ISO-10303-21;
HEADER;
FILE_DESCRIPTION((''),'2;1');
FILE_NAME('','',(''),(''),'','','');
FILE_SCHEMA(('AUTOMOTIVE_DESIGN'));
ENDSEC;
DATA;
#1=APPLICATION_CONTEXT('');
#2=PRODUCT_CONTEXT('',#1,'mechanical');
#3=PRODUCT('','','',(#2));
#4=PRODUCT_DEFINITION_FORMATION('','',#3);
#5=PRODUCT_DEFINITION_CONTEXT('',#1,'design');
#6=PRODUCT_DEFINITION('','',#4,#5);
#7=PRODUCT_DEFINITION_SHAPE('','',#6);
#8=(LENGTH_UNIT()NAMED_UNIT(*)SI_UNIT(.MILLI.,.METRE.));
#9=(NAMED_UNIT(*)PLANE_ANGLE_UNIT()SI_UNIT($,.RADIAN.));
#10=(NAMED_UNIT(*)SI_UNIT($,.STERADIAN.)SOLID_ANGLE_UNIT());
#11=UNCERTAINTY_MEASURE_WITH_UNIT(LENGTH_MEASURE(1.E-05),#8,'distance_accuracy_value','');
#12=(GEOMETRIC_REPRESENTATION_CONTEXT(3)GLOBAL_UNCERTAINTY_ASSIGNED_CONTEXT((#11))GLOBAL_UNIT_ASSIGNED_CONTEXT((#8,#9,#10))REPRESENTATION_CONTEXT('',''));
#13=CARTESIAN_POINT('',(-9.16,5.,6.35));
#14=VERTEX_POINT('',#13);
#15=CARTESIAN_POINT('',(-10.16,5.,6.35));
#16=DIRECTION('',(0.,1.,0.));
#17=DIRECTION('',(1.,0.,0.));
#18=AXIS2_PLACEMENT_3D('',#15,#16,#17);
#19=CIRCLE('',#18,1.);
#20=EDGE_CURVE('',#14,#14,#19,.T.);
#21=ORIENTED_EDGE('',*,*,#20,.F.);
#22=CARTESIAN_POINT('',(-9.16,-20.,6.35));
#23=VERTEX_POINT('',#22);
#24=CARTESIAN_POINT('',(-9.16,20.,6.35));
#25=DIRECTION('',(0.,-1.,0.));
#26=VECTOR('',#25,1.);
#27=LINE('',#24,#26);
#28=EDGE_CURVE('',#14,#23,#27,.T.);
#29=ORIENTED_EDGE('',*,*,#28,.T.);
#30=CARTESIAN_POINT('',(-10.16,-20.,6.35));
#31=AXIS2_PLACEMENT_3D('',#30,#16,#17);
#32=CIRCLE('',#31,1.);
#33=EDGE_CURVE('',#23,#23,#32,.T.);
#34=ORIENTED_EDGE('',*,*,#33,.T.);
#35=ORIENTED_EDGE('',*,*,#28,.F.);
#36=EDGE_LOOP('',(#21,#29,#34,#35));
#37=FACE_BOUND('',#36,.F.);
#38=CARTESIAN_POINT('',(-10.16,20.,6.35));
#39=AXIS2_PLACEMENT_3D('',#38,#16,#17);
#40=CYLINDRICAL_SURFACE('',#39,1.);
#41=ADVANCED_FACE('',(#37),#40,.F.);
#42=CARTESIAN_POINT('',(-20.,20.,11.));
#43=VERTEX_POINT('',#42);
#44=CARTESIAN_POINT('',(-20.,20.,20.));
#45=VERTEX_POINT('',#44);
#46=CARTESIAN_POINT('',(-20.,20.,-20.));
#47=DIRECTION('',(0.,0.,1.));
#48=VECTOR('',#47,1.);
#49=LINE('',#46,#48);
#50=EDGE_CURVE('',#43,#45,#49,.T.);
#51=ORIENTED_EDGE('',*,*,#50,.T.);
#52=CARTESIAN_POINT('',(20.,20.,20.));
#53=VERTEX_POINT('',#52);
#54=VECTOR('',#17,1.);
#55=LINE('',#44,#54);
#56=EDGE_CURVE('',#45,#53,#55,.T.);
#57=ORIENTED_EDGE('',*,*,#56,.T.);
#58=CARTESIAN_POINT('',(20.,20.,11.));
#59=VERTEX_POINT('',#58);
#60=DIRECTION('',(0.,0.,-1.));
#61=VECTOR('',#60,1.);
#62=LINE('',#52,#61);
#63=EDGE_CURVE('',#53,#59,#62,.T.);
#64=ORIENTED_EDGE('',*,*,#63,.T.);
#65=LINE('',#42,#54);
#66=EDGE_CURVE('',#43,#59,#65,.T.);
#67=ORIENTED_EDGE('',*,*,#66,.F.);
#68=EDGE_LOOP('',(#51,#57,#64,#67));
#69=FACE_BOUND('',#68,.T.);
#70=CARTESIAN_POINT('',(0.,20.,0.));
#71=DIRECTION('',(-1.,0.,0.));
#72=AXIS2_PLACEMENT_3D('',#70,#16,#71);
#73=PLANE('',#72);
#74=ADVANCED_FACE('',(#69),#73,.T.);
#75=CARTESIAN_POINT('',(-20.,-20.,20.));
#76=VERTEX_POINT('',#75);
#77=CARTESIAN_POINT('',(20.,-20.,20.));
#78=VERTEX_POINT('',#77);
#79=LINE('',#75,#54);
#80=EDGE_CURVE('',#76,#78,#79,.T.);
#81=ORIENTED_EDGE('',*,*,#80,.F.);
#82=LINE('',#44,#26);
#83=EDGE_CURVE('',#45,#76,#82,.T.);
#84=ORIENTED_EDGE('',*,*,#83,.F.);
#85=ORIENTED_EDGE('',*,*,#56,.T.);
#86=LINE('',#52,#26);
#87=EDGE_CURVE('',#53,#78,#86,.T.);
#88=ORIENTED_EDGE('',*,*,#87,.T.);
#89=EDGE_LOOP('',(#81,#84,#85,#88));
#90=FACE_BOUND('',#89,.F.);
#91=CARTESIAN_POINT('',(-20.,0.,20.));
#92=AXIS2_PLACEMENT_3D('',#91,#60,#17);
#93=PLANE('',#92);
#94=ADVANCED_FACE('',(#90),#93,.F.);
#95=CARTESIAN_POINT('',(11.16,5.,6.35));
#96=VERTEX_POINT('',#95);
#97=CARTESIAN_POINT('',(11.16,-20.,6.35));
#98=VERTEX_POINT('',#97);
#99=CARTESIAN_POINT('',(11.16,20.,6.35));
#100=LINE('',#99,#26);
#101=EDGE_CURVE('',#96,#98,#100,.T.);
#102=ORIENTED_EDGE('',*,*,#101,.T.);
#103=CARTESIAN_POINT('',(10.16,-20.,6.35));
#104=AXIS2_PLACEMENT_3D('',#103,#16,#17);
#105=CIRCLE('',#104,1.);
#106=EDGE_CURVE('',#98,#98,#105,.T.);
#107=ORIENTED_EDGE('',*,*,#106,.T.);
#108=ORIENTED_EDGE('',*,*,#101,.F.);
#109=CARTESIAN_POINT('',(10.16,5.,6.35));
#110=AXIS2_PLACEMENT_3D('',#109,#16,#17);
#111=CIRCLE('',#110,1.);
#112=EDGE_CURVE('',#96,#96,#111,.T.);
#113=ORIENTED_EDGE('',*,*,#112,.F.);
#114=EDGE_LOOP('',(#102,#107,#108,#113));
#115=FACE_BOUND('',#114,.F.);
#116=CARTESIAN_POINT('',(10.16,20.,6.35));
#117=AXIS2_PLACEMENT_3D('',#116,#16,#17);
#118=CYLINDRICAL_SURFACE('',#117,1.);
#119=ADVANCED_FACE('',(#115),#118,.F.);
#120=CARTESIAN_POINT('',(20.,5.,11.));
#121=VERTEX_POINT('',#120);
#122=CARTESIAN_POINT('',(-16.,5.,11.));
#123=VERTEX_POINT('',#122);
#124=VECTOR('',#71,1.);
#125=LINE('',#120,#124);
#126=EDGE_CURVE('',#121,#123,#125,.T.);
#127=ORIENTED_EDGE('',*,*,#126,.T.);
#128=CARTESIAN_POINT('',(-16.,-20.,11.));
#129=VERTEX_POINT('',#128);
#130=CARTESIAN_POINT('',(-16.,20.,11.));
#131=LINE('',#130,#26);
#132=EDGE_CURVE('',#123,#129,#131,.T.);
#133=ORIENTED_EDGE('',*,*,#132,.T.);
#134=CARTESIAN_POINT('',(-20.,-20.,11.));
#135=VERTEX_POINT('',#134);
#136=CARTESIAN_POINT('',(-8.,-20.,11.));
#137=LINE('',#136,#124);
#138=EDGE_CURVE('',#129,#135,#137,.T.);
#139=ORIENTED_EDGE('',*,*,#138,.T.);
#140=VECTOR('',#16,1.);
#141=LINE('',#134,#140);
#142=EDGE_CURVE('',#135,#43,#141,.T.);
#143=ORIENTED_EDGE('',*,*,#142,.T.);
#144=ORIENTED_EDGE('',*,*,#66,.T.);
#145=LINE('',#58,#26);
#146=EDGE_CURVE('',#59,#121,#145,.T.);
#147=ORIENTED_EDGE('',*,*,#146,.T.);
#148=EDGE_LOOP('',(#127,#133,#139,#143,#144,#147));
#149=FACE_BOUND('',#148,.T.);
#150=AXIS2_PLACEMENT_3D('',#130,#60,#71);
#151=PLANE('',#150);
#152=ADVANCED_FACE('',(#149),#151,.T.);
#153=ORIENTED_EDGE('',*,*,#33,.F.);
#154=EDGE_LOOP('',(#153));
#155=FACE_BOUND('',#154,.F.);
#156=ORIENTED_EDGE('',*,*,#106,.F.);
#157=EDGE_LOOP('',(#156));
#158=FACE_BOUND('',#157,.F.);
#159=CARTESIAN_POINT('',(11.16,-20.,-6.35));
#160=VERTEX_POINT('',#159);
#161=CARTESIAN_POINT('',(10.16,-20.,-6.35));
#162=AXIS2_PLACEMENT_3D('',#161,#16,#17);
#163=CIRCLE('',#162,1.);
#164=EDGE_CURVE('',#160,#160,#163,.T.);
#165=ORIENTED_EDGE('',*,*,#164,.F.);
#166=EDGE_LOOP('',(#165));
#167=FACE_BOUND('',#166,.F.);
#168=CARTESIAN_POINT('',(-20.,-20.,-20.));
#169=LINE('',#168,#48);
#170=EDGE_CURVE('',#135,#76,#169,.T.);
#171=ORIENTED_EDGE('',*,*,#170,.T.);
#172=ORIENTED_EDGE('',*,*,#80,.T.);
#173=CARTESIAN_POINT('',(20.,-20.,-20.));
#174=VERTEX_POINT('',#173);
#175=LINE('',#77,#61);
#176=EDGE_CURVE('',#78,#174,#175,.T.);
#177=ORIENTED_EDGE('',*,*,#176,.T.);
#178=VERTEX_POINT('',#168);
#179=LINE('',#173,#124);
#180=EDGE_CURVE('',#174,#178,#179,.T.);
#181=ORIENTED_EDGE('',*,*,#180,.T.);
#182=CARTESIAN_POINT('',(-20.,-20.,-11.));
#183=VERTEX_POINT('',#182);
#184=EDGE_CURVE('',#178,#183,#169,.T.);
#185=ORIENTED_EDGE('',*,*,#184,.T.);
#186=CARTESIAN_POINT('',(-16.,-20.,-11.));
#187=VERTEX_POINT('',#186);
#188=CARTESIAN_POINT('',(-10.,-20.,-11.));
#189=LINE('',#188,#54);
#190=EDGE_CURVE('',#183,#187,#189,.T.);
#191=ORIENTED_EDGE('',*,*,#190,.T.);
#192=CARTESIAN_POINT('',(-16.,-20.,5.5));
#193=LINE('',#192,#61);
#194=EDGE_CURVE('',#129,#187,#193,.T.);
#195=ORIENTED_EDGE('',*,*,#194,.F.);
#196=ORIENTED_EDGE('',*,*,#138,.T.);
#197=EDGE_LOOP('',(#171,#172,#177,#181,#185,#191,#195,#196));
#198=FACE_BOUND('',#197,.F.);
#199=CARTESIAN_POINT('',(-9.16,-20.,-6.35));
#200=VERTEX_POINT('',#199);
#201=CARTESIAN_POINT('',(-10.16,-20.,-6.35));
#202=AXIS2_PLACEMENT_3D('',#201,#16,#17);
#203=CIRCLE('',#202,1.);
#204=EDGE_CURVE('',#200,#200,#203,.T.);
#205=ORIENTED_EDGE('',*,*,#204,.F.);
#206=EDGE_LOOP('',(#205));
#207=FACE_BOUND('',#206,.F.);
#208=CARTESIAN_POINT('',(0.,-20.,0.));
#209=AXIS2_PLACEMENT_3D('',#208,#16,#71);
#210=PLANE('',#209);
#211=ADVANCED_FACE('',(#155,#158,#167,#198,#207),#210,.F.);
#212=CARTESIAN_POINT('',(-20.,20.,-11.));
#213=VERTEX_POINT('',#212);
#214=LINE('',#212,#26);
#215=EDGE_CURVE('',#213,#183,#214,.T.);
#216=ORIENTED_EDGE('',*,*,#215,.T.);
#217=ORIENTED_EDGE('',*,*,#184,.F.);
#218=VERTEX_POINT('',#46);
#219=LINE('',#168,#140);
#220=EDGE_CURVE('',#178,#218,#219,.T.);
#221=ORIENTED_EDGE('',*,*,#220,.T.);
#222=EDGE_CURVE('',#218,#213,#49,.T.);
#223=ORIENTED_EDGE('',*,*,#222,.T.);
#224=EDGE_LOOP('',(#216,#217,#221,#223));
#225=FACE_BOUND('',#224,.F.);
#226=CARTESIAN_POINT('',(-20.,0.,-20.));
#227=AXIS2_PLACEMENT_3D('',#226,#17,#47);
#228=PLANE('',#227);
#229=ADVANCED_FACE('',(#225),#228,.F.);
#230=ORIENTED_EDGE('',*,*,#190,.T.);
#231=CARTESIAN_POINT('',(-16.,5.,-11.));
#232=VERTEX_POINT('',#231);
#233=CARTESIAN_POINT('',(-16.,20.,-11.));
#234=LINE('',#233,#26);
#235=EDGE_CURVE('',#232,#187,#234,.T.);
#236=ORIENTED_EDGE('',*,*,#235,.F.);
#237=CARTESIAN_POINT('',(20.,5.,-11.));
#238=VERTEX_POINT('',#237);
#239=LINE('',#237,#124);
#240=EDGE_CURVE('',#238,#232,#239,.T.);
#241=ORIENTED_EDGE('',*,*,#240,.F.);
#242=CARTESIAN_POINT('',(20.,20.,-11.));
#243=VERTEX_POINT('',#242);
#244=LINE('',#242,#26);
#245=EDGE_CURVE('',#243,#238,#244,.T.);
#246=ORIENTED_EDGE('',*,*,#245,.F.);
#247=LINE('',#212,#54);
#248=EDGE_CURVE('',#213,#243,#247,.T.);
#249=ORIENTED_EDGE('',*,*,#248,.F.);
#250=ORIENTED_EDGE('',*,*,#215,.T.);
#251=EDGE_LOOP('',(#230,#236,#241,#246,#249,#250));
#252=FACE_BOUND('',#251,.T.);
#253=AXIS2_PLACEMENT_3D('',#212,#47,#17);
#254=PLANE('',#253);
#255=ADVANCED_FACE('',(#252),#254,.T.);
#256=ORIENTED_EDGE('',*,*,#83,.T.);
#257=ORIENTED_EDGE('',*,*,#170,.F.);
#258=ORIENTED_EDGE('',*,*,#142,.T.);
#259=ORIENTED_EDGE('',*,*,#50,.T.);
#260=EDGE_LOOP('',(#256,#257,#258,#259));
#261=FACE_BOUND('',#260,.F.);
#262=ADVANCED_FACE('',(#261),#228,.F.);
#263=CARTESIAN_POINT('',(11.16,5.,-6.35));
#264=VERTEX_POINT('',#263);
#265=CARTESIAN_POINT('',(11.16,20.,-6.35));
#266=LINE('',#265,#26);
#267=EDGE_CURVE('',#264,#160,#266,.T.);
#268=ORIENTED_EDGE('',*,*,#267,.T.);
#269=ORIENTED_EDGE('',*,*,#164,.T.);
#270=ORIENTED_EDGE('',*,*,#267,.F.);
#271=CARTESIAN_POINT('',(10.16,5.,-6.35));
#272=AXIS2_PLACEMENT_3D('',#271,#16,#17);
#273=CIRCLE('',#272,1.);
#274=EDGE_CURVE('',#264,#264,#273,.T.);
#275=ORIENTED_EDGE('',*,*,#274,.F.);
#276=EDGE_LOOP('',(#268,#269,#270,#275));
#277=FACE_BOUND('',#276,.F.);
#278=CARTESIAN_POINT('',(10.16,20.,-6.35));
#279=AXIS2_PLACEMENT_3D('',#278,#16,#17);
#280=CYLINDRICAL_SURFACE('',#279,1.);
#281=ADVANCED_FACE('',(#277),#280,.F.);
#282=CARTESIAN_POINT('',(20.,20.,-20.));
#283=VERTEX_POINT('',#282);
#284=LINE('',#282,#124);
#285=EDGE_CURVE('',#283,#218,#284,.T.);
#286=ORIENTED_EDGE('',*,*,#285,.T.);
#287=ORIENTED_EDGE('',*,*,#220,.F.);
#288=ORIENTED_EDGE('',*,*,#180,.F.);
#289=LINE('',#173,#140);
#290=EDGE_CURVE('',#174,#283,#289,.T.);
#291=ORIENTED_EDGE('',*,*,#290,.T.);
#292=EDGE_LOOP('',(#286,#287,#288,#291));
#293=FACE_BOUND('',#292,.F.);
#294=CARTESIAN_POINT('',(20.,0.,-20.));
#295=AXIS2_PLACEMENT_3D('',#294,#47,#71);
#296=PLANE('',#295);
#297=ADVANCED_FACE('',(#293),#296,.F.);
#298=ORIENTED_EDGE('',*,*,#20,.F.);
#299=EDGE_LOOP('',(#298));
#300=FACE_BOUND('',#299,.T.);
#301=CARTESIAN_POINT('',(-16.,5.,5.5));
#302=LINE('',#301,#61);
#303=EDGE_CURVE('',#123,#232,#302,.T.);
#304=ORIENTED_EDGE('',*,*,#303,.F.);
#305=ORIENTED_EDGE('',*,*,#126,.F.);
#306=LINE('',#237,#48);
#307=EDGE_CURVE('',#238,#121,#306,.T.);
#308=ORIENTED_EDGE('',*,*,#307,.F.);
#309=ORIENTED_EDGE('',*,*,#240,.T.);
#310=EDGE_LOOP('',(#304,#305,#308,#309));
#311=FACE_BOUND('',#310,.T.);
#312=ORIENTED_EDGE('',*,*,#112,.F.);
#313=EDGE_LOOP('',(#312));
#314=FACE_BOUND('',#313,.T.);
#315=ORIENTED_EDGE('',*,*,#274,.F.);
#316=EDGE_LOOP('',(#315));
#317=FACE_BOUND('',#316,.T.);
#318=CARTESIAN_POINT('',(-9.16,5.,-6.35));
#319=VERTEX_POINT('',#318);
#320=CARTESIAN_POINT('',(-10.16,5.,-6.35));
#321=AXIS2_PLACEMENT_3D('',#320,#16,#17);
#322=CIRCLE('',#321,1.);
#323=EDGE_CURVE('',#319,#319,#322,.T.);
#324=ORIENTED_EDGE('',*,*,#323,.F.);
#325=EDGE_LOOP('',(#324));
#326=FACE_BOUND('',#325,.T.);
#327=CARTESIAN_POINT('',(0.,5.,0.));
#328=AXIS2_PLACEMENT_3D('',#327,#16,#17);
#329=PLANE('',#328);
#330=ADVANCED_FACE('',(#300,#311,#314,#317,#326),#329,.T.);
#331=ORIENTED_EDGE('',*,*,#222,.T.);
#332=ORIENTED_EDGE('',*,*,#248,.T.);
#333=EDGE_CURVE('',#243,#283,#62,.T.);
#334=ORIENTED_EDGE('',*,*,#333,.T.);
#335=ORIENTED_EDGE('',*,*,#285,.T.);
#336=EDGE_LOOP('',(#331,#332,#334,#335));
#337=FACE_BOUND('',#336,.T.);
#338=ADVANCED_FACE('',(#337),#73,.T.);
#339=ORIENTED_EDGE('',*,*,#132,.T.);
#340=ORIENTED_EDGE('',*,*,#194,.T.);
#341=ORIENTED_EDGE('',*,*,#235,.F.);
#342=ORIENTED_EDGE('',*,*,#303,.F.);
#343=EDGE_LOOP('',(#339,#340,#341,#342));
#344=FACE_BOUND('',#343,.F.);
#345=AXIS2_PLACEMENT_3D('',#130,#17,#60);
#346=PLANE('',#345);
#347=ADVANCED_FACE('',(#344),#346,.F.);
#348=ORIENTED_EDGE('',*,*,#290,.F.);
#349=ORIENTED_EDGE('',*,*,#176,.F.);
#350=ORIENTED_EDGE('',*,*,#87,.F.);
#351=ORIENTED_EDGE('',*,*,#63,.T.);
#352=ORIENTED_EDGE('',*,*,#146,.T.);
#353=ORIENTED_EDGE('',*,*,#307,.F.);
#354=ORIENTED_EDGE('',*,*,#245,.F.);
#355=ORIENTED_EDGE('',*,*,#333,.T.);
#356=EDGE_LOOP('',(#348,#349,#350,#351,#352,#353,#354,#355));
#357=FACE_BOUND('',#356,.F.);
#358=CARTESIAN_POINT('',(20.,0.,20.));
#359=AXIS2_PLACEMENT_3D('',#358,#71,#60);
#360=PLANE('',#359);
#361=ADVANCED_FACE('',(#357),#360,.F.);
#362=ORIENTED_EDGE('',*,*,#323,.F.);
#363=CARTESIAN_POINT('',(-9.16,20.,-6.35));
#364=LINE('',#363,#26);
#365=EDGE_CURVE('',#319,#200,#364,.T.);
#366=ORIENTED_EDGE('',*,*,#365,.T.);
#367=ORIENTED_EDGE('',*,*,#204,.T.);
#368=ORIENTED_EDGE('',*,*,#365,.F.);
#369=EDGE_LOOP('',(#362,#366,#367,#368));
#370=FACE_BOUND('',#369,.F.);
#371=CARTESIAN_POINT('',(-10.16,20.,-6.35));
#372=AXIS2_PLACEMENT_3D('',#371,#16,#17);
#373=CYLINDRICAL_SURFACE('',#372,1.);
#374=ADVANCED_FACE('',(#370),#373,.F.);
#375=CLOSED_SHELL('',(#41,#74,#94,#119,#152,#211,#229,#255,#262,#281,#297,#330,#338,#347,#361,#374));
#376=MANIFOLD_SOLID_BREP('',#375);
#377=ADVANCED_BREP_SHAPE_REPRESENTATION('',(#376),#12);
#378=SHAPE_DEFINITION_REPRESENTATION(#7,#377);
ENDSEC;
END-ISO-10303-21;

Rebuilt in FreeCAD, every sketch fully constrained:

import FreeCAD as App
import Part
import Sketcher

V = App.Vector
Q = App.Units.Quantity


def add_polygon(sketch, points):
    """Adds a closed chain of lines whose ends are joined by coincident constraints."""
    first, n = sketch.GeometryCount, len(points)
    for a, b in zip(points, points[1:] + points[:1]):
        sketch.addGeometry(Part.LineSegment(App.Vector(*a, 0), App.Vector(*b, 0)), False)
    for i in range(n):
        sketch.addConstraint(Sketcher.Constraint("Coincident", first + i, 2, first + (i + 1) % n, 1))

doc = App.newDocument("Part")
params = doc.addObject("Spreadsheet::Sheet", "Params")
for row, (alias, value) in enumerate([
    ("sketch1_width", "40 mm"),
    ("pad1_length", "40 mm"),
    ("sketch2_height", "22 mm"),
    ("sketch2_width", "40 mm"),
    ("pocket1_length", "15 mm"),
    ("sketch3_width", "8 mm"),
    ("sketch3_height", "22 mm"),
    ("sketch4_diameter", "2 mm"),
], start=1):
    params.set(f"A{row}", alias)
    params.set(f"B{row}", "=" + value)
    params.setAlias(f"B{row}", alias)

body = doc.addObject("PartDesign::Body", "Body")

sketch1 = body.newObject("Sketcher::SketchObject", "Sketch")
sketch1.AttachmentSupport = (doc.getObject("XZ_Plane"), [""])
sketch1.MapMode = "FlatFace"
add_polygon(sketch1, [(20, 20), (20, -20), (-20, -20), (-20, 20)])
sketch1.addConstraint(Sketcher.Constraint("Vertical", 0))
sketch1.addConstraint(Sketcher.Constraint("Horizontal", 1))
sketch1.addConstraint(Sketcher.Constraint("Vertical", 2))
sketch1.addConstraint(Sketcher.Constraint("Horizontal", 3))
sketch1.addConstraint(Sketcher.Constraint("Symmetric", 0, 2, 2, 2, -1, 1))
sketch1.addConstraint(Sketcher.Constraint("Equal", 3, 0))
sketch1.addConstraint(Sketcher.Constraint("DistanceX", 1, 2, 1, 1, Q("40 mm")))
sketch1.setExpression("Constraints[10]", "Params.sketch1_width")
pad1 = body.newObject("PartDesign::Pad", "Pad")
pad1.Profile = sketch1
pad1.setExpression("Length", "Params.pad1_length")
pad1.Midplane = True

sketch2 = body.newObject("Sketcher::SketchObject", "Sketch001")
sketch2.AttachmentSupport = (doc.getObject("XZ_Plane"), [""])
sketch2.MapMode = "FlatFace"
sketch2.AttachmentOffset = App.Placement(V(0, 0, -20), App.Rotation())
add_polygon(sketch2, [(-20, -11), (-20, 11), (20, 11), (20, -11)])
sketch2.addConstraint(Sketcher.Constraint("Vertical", 0))
sketch2.addConstraint(Sketcher.Constraint("Horizontal", 1))
sketch2.addConstraint(Sketcher.Constraint("Vertical", 2))
sketch2.addConstraint(Sketcher.Constraint("Horizontal", 3))
sketch2.addConstraint(Sketcher.Constraint("Symmetric", 0, 2, 2, 2, -1, 1))
sketch2.addConstraint(Sketcher.Constraint("DistanceY", 0, 1, 0, 2, Q("22 mm")))
sketch2.addConstraint(Sketcher.Constraint("DistanceX", 1, 1, 1, 2, Q("40 mm")))
sketch2.setExpression("Constraints[9]", "Params.sketch2_height")
sketch2.setExpression("Constraints[10]", "Params.sketch2_width")
pocket1 = body.newObject("PartDesign::Pocket", "Pocket")
pocket1.Profile = sketch2
pocket1.setExpression("Length", "Params.pocket1_length")
pocket1.Reversed = True

sketch3 = body.newObject("Sketcher::SketchObject", "Sketch002")
sketch3.AttachmentSupport = (doc.getObject("XZ_Plane"), [""])
sketch3.MapMode = "FlatFace"
sketch3.AttachmentOffset = App.Placement(V(0, 0, -20), App.Rotation())
add_polygon(sketch3, [(-16, -11), (-24, -11), (-24, 11), (-16, 11)])
sketch3.addConstraint(Sketcher.Constraint("Horizontal", 0))
sketch3.addConstraint(Sketcher.Constraint("Vertical", 1))
sketch3.addConstraint(Sketcher.Constraint("Horizontal", 2))
sketch3.addConstraint(Sketcher.Constraint("Vertical", 3))
sketch3.addConstraint(Sketcher.Constraint("DistanceX", 0, 2, 0, 1, Q("8 mm")))
sketch3.addConstraint(Sketcher.Constraint("DistanceY", 1, 1, 1, 2, Q("22 mm")))
sketch3.addConstraint(Sketcher.Constraint("DistanceX", 0, 2, -1, 1, Q("24 mm")))
sketch3.addConstraint(Sketcher.Constraint("DistanceY", 0, 2, -1, 1, Q("11 mm")))
sketch3.setExpression("Constraints[8]", "Params.sketch3_width")
sketch3.setExpression("Constraints[9]", "Params.sketch3_height")
pocket2 = body.newObject("PartDesign::Pocket", "Pocket001")
pocket2.Profile = sketch3
pocket2.Type = "ThroughAll"
pocket2.Reversed = True

sketch4 = body.newObject("Sketcher::SketchObject", "Sketch003")
sketch4.AttachmentSupport = (doc.getObject("XZ_Plane"), [""])
sketch4.MapMode = "FlatFace"
sketch4.AttachmentOffset = App.Placement(V(0, 0, -20), App.Rotation())
sketch4.addGeometry(Part.Circle(V(10.2, 6.3, 0), V(0, 0, 1), 1), False)
sketch4.addGeometry(Part.Circle(V(-10.2, 6.3, 0), V(0, 0, 1), 1), False)
sketch4.addGeometry(Part.Circle(V(-10.2, -6.3, 0), V(0, 0, 1), 1), False)
sketch4.addGeometry(Part.Circle(V(10.2, -6.3, 0), V(0, 0, 1), 1), False)
sketch4.addConstraint(Sketcher.Constraint("Equal", 0, 1))
sketch4.addConstraint(Sketcher.Constraint("Equal", 1, 2))
sketch4.addConstraint(Sketcher.Constraint("Equal", 2, 3))
sketch4.addConstraint(Sketcher.Constraint("Symmetric", 0, 3, 2, 3, -1, 1))
sketch4.addConstraint(Sketcher.Constraint("Symmetric", 1, 3, 3, 3, -1, 1))
sketch4.addConstraint(Sketcher.Constraint("Symmetric", 0, 3, 1, 3, -2))
sketch4.addConstraint(Sketcher.Constraint("Diameter", 0, Q("2 mm")))
sketch4.addConstraint(Sketcher.Constraint("DistanceY", 2, 3, 1, 3, Q("12.7 mm")))
sketch4.addConstraint(Sketcher.Constraint("DistanceX", 1, 3, 0, 3, Q("20.32 mm")))
sketch4.setExpression("Constraints[6]", "Params.sketch4_diameter")
pocket3 = body.newObject("PartDesign::Pocket", "Pocket002")
pocket3.Profile = sketch4
pocket3.Type = "ThroughAll"
pocket3.Reversed = True

doc.recompute()
